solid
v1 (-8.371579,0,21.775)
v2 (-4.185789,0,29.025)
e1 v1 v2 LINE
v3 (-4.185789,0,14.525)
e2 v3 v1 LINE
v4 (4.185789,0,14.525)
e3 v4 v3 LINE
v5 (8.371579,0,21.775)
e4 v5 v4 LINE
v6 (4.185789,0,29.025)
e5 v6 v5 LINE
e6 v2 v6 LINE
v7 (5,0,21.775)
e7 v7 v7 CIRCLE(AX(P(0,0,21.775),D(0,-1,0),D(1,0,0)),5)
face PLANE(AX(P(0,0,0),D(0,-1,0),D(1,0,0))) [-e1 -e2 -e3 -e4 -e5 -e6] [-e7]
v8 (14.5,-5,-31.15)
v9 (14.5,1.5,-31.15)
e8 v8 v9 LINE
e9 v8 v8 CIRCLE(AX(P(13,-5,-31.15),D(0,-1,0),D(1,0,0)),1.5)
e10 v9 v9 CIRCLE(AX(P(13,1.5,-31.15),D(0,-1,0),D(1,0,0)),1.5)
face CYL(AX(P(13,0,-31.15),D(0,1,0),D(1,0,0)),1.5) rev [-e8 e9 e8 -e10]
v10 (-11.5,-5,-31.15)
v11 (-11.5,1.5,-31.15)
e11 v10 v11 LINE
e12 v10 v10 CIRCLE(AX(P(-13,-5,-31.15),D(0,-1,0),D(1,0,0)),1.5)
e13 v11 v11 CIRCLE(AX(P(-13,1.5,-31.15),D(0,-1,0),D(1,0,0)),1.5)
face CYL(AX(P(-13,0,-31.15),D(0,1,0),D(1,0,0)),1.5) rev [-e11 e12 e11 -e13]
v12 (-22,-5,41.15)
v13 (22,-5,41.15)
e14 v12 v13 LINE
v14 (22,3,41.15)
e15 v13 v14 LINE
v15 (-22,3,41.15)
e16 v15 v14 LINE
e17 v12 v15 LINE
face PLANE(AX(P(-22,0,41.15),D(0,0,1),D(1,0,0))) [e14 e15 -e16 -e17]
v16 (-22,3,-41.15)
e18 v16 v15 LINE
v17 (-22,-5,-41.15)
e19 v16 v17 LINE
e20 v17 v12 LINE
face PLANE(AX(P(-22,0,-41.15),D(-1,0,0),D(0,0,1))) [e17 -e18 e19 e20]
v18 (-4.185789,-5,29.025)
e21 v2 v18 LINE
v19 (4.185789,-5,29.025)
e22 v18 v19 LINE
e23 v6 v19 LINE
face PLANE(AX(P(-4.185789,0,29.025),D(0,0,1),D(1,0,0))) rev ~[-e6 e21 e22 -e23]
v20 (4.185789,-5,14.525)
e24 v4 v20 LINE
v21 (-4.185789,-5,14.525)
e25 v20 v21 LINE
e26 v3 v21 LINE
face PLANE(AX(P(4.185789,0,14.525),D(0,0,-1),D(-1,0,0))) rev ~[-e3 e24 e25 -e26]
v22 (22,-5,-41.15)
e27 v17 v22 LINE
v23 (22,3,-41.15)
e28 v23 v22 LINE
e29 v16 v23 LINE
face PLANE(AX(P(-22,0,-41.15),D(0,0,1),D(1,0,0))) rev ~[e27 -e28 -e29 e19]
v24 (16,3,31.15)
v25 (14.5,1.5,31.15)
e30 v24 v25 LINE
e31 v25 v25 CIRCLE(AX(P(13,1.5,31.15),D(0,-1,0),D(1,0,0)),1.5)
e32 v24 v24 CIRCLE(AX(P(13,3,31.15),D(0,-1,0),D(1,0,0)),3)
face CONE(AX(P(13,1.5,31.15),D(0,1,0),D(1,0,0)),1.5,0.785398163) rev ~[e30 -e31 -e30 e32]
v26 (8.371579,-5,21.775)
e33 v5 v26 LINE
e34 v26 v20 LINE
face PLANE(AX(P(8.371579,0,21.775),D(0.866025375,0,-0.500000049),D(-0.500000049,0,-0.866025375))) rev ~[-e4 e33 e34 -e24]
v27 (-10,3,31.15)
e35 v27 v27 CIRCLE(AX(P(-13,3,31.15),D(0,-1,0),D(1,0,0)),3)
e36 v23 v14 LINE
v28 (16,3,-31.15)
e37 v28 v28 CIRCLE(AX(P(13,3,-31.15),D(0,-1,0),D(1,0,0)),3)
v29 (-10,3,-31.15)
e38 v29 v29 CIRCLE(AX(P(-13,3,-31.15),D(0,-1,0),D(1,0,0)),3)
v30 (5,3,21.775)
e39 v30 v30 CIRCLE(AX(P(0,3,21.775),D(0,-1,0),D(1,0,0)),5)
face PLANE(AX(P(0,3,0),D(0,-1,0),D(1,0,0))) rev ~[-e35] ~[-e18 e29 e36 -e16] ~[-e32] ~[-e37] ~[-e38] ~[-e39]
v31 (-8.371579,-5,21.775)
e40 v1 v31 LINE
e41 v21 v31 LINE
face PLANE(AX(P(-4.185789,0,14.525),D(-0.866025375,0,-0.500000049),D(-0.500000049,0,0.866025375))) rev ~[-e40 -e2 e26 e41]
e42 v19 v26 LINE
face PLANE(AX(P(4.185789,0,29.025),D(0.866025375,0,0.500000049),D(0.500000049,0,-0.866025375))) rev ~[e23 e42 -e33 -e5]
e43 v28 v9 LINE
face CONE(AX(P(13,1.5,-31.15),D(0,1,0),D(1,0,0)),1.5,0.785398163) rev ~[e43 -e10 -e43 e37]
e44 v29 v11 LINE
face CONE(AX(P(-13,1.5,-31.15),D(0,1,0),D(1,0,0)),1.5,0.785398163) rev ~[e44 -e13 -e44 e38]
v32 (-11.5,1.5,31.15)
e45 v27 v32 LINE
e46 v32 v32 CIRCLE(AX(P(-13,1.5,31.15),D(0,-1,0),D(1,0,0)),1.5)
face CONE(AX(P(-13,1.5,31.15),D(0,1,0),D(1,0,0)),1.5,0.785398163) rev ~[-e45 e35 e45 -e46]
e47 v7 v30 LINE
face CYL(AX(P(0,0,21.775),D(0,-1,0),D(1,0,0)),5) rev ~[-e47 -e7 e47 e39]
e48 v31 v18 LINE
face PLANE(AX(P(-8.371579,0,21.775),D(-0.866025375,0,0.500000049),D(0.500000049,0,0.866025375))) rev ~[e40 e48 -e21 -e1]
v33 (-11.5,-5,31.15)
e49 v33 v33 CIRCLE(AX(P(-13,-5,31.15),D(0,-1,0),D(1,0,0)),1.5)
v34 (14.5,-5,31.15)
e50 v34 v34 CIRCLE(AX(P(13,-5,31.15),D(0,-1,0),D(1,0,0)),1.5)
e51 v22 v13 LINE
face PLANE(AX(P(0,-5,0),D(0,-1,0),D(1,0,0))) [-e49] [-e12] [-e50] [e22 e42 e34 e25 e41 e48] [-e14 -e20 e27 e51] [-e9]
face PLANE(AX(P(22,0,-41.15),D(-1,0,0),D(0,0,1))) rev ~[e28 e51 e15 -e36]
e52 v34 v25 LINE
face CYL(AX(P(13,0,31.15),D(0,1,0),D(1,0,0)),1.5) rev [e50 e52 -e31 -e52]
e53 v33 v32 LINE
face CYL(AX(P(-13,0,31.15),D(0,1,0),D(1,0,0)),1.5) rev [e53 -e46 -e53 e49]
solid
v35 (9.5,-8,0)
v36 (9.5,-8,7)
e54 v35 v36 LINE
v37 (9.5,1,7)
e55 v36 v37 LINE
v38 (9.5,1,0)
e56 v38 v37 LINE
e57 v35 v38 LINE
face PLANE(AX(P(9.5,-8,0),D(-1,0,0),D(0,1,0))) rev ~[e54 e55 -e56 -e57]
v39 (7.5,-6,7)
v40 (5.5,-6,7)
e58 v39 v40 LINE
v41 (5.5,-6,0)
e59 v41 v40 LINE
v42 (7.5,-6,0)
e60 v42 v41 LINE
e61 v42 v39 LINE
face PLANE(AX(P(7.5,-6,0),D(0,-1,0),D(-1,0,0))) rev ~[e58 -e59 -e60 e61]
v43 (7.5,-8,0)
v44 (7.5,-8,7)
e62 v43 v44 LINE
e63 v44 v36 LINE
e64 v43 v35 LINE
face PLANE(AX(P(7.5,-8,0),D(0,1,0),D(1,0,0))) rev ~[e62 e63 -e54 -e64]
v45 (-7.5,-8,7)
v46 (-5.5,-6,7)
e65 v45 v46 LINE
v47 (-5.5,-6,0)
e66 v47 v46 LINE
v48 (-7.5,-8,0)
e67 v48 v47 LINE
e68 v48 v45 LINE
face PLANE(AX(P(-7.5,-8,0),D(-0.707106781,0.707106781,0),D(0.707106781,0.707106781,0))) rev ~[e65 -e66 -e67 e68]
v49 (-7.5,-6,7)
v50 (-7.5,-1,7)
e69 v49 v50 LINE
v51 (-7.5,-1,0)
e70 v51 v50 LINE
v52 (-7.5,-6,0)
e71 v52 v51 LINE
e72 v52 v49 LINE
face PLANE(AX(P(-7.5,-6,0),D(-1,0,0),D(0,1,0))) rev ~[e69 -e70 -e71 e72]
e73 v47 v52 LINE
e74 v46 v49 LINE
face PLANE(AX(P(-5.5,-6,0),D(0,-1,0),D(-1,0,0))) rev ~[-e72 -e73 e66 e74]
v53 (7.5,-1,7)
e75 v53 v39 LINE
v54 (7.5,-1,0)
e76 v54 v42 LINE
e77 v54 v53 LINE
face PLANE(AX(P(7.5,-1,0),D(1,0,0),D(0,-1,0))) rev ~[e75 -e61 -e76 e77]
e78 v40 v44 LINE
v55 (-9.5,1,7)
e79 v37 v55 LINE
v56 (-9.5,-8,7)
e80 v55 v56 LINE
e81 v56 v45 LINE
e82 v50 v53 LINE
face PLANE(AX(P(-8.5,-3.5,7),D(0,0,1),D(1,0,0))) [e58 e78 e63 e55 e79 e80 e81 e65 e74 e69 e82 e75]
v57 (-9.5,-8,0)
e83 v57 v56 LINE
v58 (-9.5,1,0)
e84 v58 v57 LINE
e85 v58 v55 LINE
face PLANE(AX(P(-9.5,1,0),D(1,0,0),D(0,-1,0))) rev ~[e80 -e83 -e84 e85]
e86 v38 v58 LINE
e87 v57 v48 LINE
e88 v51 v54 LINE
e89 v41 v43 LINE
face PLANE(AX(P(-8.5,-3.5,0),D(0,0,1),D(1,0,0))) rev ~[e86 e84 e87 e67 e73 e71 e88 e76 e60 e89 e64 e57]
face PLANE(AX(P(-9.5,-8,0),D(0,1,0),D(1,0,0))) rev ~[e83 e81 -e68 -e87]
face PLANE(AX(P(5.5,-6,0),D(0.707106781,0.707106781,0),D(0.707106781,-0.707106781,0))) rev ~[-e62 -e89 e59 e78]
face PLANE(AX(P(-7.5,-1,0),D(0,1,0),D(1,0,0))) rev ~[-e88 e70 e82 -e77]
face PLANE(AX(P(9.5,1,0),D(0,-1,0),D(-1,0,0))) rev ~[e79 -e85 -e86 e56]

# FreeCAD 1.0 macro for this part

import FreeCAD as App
import Part
import Sketcher
from FreeCAD import Vector
Q = App.Units.Quantity


def edges_at(feature, points):
    """Names of the edges that pass closest to the given points."""
    edges = feature.Shape.Edges
    near = lambda p: min(range(len(edges)), key=lambda i: edges[i].distToShape(Part.Vertex(*p))[0])
    return sorted({f"Edge{near(p) + 1}" for p in points})

doc = App.newDocument("Part")
params = doc.addObject("Spreadsheet::Sheet", "Params")
for row, (alias, value) in enumerate([
    ("sketch1_diameter", "3 mm"),
    ("sketch1_diameter2", "10 mm"),
    ("sketch1_width", "44 mm"),
    ("sketch1_height", "82.3 mm"),
    ("pad1_length", "3 mm"),
    ("sketch2_diameter", "3 mm"),
    ("sketch2_width", "44 mm"),
    ("sketch2_height", "82.3 mm"),
    ("pad2_length", "5 mm"),
    ("chamfer_size", "1.5 mm"),
    ("sketch3_width", "2 mm"),
    ("sketch3_width2", "15 mm"),
    ("sketch3_height", "9 mm"),
    ("sketch3_height2", "5 mm"),
    ("pad3_length", "7 mm"),
], start=1):
    params.set(f"A{row}", alias)
    params.set(f"B{row}", "=" + value)
    params.setAlias(f"B{row}", alias)

body = doc.addObject("PartDesign::Body", "Body")

sketch1 = doc.addObject("Sketcher::SketchObject", "Sketch")
body.addObject(sketch1)
sketch1.AttachmentSupport = (doc.XZ_Plane, [""])
sketch1.MapMode = "FlatFace"
sketch1.addGeometry([
    Part.LineSegment(Vector(-22, 41.15, 0), Vector(-22, -41.15, 0)),
    Part.LineSegment(Vector(-22, -41.15, 0), Vector(22, -41.15, 0)),
    Part.LineSegment(Vector(22, -41.15, 0), Vector(22, 41.15, 0)),
    Part.LineSegment(Vector(22, 41.15, 0), Vector(-22, 41.15, 0)),
    Part.Circle(Vector(-13, -31.15, 0), Vector(0, 0, 1), 1.5),
    Part.Circle(Vector(13, -31.15, 0), Vector(0, 0, 1), 1.5),
    Part.Circle(Vector(-13, 31.15, 0), Vector(0, 0, 1), 1.5),
    Part.Circle(Vector(0, 21.775, 0), Vector(0, 0, 1), 5),
    Part.Circle(Vector(13, 31.15, 0), Vector(0, 0, 1), 1.5),
], False)
sketch1.addConstraint([
    Sketcher.Constraint("Coincident", 0, 2, 1, 1),
    Sketcher.Constraint("Coincident", 1, 2, 2, 1),
    Sketcher.Constraint("Coincident", 2, 2, 3, 1),
    Sketcher.Constraint("Coincident", 3, 2, 0, 1),
    Sketcher.Constraint("Vertical", 0),
    Sketcher.Constraint("Horizontal", 1),
    Sketcher.Constraint("Vertical", 2),
    Sketcher.Constraint("Horizontal", 3),
    Sketcher.Constraint("Equal", 4, 5),
    Sketcher.Constraint("Equal", 5, 6),
    Sketcher.Constraint("Equal", 6, 8),
    Sketcher.Constraint("Symmetric", 5, 3, 6, 3, -1, 1),
    Sketcher.Constraint("Symmetric", 4, 3, 8, 3, -1, 1),
    Sketcher.Constraint("Symmetric", 0, 2, 2, 2, -1, 1),
    Sketcher.Constraint("Symmetric", 4, 3, 5, 3, -2),
    Sketcher.Constraint("PointOnObject", 7, 3, -2),
    Sketcher.Constraint("Diameter", 4, Q("3 mm")),
    Sketcher.Constraint("Diameter", 7, Q("10 mm")),
    Sketcher.Constraint("DistanceX", 1, 1, 1, 2, Q("44 mm")),
    Sketcher.Constraint("DistanceY", 0, 2, 0, 1, Q("82.3 mm")),
    Sketcher.Constraint("DistanceX", 4, 3, -1, 1, Q("13 mm")),
    Sketcher.Constraint("DistanceY", 0, 2, 4, 3, Q("10 mm")),
    Sketcher.Constraint("DistanceY", -1, 1, 7, 3, Q("21.775 mm")),
])
sketch1.setExpression("Constraints[16]", "Params.sketch1_diameter")
sketch1.setExpression("Constraints[17]", "Params.sketch1_diameter2")
sketch1.setExpression("Constraints[18]", "Params.sketch1_width")
sketch1.setExpression("Constraints[19]", "Params.sketch1_height")
pad1 = doc.addObject("PartDesign::Pad", "Pad")
body.addObject(pad1)
pad1.Profile = sketch1
pad1.setExpression("Length", "Params.pad1_length")
pad1.Reversed = True

sketch2 = doc.addObject("Sketcher::SketchObject", "Sketch001")
body.addObject(sketch2)
sketch2.AttachmentSupport = (doc.XZ_Plane, [""])
sketch2.MapMode = "FlatFace"
sketch2.addGeometry([
    Part.LineSegment(Vector(-22, 41.15, 0), Vector(-22, -41.15, 0)),
    Part.LineSegment(Vector(-22, -41.15, 0), Vector(22, -41.15, 0)),
    Part.LineSegment(Vector(22, -41.15, 0), Vector(22, 41.15, 0)),
    Part.LineSegment(Vector(22, 41.15, 0), Vector(-22, 41.15, 0)),
    Part.Circle(Vector(-13, -31.15, 0), Vector(0, 0, 1), 1.5),
    Part.Circle(Vector(13, -31.15, 0), Vector(0, 0, 1), 1.5),
    Part.Circle(Vector(-13, 31.15, 0), Vector(0, 0, 1), 1.5),
    Part.LineSegment(Vector(4.185789, 14.525, 0), Vector(-4.185789, 14.525, 0)),
    Part.LineSegment(Vector(-4.185789, 14.525, 0), Vector(-8.371579, 21.775, 0)),
    Part.LineSegment(Vector(-8.371579, 21.775, 0), Vector(-4.185789, 29.025, 0)),
    Part.LineSegment(Vector(-4.185789, 29.025, 0), Vector(4.185789, 29.025, 0)),
    Part.LineSegment(Vector(4.185789, 29.025, 0), Vector(8.371579, 21.775, 0)),
    Part.LineSegment(Vector(8.371579, 21.775, 0), Vector(4.185789, 14.525, 0)),
    Part.Circle(Vector(13, 31.15, 0), Vector(0, 0, 1), 1.5),
], False)
sketch2.addConstraint([
    Sketcher.Constraint("Coincident", 0, 2, 1, 1),
    Sketcher.Constraint("Coincident", 1, 2, 2, 1),
    Sketcher.Constraint("Coincident", 2, 2, 3, 1),
    Sketcher.Constraint("Coincident", 3, 2, 0, 1),
    Sketcher.Constraint("Coincident", 7, 2, 8, 1),
    Sketcher.Constraint("Coincident", 8, 2, 9, 1),
    Sketcher.Constraint("Coincident", 9, 2, 10, 1),
    Sketcher.Constraint("Coincident", 10, 2, 11, 1),
    Sketcher.Constraint("Coincident", 11, 2, 12, 1),
    Sketcher.Constraint("Coincident", 12, 2, 7, 1),
    Sketcher.Constraint("Vertical", 0),
    Sketcher.Constraint("Horizontal", 1),
    Sketcher.Constraint("Vertical", 2),
    Sketcher.Constraint("Horizontal", 3),
    Sketcher.Constraint("Horizontal", 7),
    Sketcher.Constraint("Horizontal", 10),
    Sketcher.Constraint("Equal", 4, 5),
    Sketcher.Constraint("Equal", 5, 6),
    Sketcher.Constraint("Equal", 6, 13),
    Sketcher.Constraint("Symmetric", 5, 3, 6, 3, -1, 1),
    Sketcher.Constraint("Symmetric", 4, 3, 13, 3, -1, 1),
    Sketcher.Constraint("Symmetric", 0, 2, 2, 2, -1, 1),
    Sketcher.Constraint("Symmetric", 4, 3, 5, 3, -2),
    Sketcher.Constraint("Symmetric", 8, 2, 11, 2, -2),
    Sketcher.Constraint("Parallel", 8, 11),
    Sketcher.Constraint("Parallel", 9, 12),
    Sketcher.Constraint("Vertical", 7, 2, 9, 2),
    Sketcher.Constraint("Vertical", 10, 2, 12, 2),
    Sketcher.Constraint("Diameter", 4, Q("3 mm")),
    Sketcher.Constraint("DistanceX", 1, 1, 1, 2, Q("44 mm")),
    Sketcher.Constraint("Angle", 8, Q("120.000003 deg")),
    Sketcher.Constraint("DistanceY", 0, 2, 0, 1, Q("82.3 mm")),
    Sketcher.Constraint("DistanceX", 4, 3, -1, 1, Q("13 mm")),
    Sketcher.Constraint("DistanceY", 0, 2, 4, 3, Q("10 mm")),
    Sketcher.Constraint("DistanceY", 7, 2, 9, 2, Q("14.5 mm")),
    Sketcher.Constraint("DistanceY", -1, 1, 7, 2, Q("14.525 mm")),
    Sketcher.Constraint("DistanceX", 7, 2, 7, 1, Q("8.371578 mm")),
])
sketch2.setExpression("Constraints[28]", "Params.sketch2_diameter")
sketch2.setExpression("Constraints[29]", "Params.sketch2_width")
sketch2.setExpression("Constraints[31]", "Params.sketch2_height")
pad2 = doc.addObject("PartDesign::Pad", "Pad001")
body.addObject(pad2)
pad2.Profile = sketch2
pad2.setExpression("Length", "Params.pad2_length")
doc.recompute()

chamfer = doc.addObject("PartDesign::Chamfer", "Chamfer")
body.addObject(chamfer)
chamfer.Base = (pad2, edges_at(pad2, [
    (11.5, 3, 31.15),
    (-14.5, 3, 31.15),
    (-14.5, 3, -31.15),
    (11.5, 3, -31.15),
]))
chamfer.setExpression("Size", "Params.chamfer_size")
body2 = doc.addObject("PartDesign::Body", "Body001")

sketch3 = doc.addObject("Sketcher::SketchObject", "Sketch002")
body2.addObject(sketch3)
sketch3.AttachmentSupport = (doc.getObject("XY_Plane001"), [""])
sketch3.MapMode = "FlatFace"
sketch3.addGeometry([
    Part.LineSegment(Vector(-9.5, 1, 0), Vector(-9.5, -8, 0)),
    Part.LineSegment(Vector(-9.5, -8, 0), Vector(-7.5, -8, 0)),
    Part.LineSegment(Vector(-7.5, -8, 0), Vector(-5.5, -6, 0)),
    Part.LineSegment(Vector(-5.5, -6, 0), Vector(-7.5, -6, 0)),
    Part.LineSegment(Vector(-7.5, -6, 0), Vector(-7.5, -1, 0)),
    Part.LineSegment(Vector(-7.5, -1, 0), Vector(7.5, -1, 0)),
    Part.LineSegment(Vector(7.5, -1, 0), Vector(7.5, -6, 0)),
    Part.LineSegment(Vector(7.5, -6, 0), Vector(5.5, -6, 0)),
    Part.LineSegment(Vector(5.5, -6, 0), Vector(7.5, -8, 0)),
    Part.LineSegment(Vector(7.5, -8, 0), Vector(9.5, -8, 0)),
    Part.LineSegment(Vector(9.5, -8, 0), Vector(9.5, 1, 0)),
    Part.LineSegment(Vector(9.5, 1, 0), Vector(-9.5, 1, 0)),
], False)
sketch3.addConstraint([
    Sketcher.Constraint("Coincident", 0, 2, 1, 1),
    Sketcher.Constraint("Coincident", 1, 2, 2, 1),
    Sketcher.Constraint("Coincident", 2, 2, 3, 1),
    Sketcher.Constraint("Coincident", 3, 2, 4, 1),
    Sketcher.Constraint("Coincident", 4, 2, 5, 1),
    Sketcher.Constraint("Coincident", 5, 2, 6, 1),
    Sketcher.Constraint("Coincident", 6, 2, 7, 1),
    Sketcher.Constraint("Coincident", 7, 2, 8, 1),
    Sketcher.Constraint("Coincident", 8, 2, 9, 1),
    Sketcher.Constraint("Coincident", 9, 2, 10, 1),
    Sketcher.Constraint("Coincident", 10, 2, 11, 1),
    Sketcher.Constraint("Coincident", 11, 2, 0, 1),
    Sketcher.Constraint("Vertical", 0),
    Sketcher.Constraint("Horizontal", 1),
    Sketcher.Constraint("Horizontal", 3),
    Sketcher.Constraint("Vertical", 4),
    Sketcher.Constraint("Horizontal", 5),
    Sketcher.Constraint("Vertical", 6),
    Sketcher.Constraint("Horizontal", 7),
    Sketcher.Constraint("Horizontal", 9),
    Sketcher.Constraint("Vertical", 10),
    Sketcher.Constraint("Horizontal", 11),
    Sketcher.Constraint("Symmetric", 3, 2, 6, 2, -2),
    Sketcher.Constraint("Symmetric", 1, 2, 8, 2, -2),
    Sketcher.Constraint("Perpendicular", 2, 8),
    Sketcher.Constraint("Vertical", 1, 2, 3, 2),
    Sketcher.Constraint("Equal", 1, 3),
    Sketcher.Constraint("Equal", 3, 7),
    Sketcher.Constraint("Equal", 7, 9),
    Sketcher.Constraint("DistanceX", 1, 1, 1, 2, Q("2 mm")),
    Sketcher.Constraint("DistanceX", 5, 1, 5, 2, Q("15 mm")),
    Sketcher.Constraint("DistanceY", 0, 2, 0, 1, Q("9 mm")),
    Sketcher.Constraint("DistanceY", 4, 1, 4, 2, Q("5 mm")),
    Sketcher.Constraint("DistanceY", 0, 2, -1, 1, Q("8 mm")),
])
sketch3.setExpression("Constraints[29]", "Params.sketch3_width")
sketch3.setExpression("Constraints[30]", "Params.sketch3_width2")
sketch3.setExpression("Constraints[31]", "Params.sketch3_height")
sketch3.setExpression("Constraints[32]", "Params.sketch3_height2")
pad3 = doc.addObject("PartDesign::Pad", "Pad002")
body2.addObject(pad3)
pad3.Profile = sketch3
pad3.setExpression("Length", "Params.pad3_length")

doc.recompute()
